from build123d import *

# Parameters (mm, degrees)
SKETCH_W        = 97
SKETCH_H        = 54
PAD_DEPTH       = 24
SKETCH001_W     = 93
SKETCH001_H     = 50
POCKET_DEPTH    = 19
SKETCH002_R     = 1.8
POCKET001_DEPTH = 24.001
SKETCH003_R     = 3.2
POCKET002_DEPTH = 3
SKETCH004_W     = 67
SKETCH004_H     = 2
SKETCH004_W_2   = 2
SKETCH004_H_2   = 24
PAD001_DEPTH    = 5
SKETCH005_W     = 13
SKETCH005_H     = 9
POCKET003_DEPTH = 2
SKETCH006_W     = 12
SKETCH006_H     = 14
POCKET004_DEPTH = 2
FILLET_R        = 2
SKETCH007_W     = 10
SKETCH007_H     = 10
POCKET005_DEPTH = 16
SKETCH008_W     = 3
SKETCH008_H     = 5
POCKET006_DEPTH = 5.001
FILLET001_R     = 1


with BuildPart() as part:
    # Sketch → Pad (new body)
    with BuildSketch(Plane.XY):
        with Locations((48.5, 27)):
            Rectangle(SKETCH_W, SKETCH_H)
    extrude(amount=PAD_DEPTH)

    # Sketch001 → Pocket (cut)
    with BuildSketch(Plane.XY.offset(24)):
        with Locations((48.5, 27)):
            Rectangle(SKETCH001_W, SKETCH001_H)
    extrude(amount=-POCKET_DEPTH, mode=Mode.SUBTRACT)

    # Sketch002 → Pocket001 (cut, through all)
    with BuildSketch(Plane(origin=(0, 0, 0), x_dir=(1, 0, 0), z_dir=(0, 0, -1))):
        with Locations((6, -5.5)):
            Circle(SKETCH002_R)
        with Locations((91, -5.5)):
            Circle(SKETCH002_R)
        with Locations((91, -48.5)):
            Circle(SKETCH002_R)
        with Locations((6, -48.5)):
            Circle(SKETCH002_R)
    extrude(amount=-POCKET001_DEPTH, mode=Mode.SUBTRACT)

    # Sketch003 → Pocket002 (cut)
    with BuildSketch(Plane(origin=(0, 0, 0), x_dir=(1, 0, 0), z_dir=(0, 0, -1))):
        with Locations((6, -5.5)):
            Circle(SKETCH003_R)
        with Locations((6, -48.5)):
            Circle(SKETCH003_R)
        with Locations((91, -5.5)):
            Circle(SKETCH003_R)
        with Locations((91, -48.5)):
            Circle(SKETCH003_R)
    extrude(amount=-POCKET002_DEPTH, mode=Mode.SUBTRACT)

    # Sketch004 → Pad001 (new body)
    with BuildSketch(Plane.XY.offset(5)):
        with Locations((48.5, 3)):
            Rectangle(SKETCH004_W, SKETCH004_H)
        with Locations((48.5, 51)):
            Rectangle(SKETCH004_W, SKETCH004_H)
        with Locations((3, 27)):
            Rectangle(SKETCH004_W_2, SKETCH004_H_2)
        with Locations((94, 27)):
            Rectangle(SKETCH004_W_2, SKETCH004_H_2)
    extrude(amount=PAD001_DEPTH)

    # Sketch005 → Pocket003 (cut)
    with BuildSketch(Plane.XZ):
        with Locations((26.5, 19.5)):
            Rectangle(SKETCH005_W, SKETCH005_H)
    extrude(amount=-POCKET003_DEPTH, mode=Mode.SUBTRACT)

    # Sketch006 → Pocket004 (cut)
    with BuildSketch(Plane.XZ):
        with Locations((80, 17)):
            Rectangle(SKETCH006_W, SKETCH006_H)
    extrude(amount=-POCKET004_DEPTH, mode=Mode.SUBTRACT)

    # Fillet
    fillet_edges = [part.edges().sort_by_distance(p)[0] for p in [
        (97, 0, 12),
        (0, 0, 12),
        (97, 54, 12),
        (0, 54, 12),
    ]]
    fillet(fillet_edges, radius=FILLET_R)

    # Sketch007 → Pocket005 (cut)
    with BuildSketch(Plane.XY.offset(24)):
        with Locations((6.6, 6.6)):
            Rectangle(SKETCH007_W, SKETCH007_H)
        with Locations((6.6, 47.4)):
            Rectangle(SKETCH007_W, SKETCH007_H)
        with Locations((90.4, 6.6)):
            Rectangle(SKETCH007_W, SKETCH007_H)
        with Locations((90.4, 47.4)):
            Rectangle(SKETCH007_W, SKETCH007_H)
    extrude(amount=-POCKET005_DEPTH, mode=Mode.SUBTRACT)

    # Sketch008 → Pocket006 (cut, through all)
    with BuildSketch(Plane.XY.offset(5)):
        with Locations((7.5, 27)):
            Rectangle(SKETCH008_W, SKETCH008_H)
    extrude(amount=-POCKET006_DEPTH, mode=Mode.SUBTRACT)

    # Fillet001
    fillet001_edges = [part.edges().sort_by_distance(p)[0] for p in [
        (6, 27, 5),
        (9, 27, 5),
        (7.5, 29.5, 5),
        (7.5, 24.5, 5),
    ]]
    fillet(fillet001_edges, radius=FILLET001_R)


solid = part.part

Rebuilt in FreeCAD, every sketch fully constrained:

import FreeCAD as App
import Part
import Sketcher
from FreeCAD import Vector


def edges_at(feature, points):
    """Names of the edges that pass closest to the given points."""
    edges = feature.Shape.Edges
    near = lambda p: min(range(len(edges)), key=lambda i: edges[i].distToShape(Part.Vertex(*p))[0])
    return sorted({f"Edge{near(p) + 1}" for p in points})

doc = App.newDocument("Part")
params = doc.addObject("Spreadsheet::Sheet", "Params")
for row, (alias, value) in enumerate([
    ("sketch1_width", "97 mm"),
    ("sketch1_height", "54 mm"),
    ("pad1_length", "24 mm"),
    ("sketch2_width", "93 mm"),
    ("sketch2_height", "50 mm"),
    ("pocket1_length", "19 mm"),
    ("sketch3_diameter", "3.6 mm"),
    ("sketch4_diameter", "6.4 mm"),
    ("pocket3_length", "3 mm"),
    ("sketch5_width", "67 mm"),
    ("sketch5_width2", "2 mm"),
    ("sketch5_height", "24 mm"),
    ("pad2_length", "5 mm"),
    ("sketch6_width", "13 mm"),
    ("sketch6_height", "9 mm"),
    ("pocket4_length", "2 mm"),
    ("sketch7_width", "12 mm"),
    ("sketch7_height", "14 mm"),
    ("pocket5_length", "2 mm"),
    ("fillet_radius", "2 mm"),
    ("sketch8_width", "10 mm"),
    ("pocket6_length", "16 mm"),
    ("sketch9_width", "3 mm"),
    ("sketch9_height", "5 mm"),
    ("fillet2_radius", "1 mm"),
], start=1):
    params.set(f"A{row}", alias)
    params.set(f"B{row}", "=" + value)
    params.setAlias(f"B{row}", alias)

body = doc.addObject("PartDesign::Body", "Body")

sketch1 = body.newObject("Sketcher::SketchObject", "Sketch")
sketch1.AttachmentSupport = (doc.getObject("XY_Plane"), [""])
sketch1.MapMode = "FlatFace"
sketch1.addGeometry(Part.LineSegment(Vector(0, 54, 0), Vector(0, 0, 0)), False)
sketch1.addGeometry(Part.LineSegment(Vector(0, 0, 0), Vector(97, 0, 0)), False)
sketch1.addGeometry(Part.LineSegment(Vector(97, 0, 0), Vector(97, 54, 0)), False)
sketch1.addGeometry(Part.LineSegment(Vector(97, 54, 0), Vector(0, 54, 0)), False)
sketch1.addConstraint(Sketcher.Constraint("Coincident", 0, 2, 1, 1))
sketch1.addConstraint(Sketcher.Constraint("Coincident", 1, 2, 2, 1))
sketch1.addConstraint(Sketcher.Constraint("Coincident", 2, 2, 3, 1))
sketch1.addConstraint(Sketcher.Constraint("Coincident", 3, 2, 0, 1))
sketch1.addConstraint(Sketcher.Constraint("Vertical", 0))
sketch1.addConstraint(Sketcher.Constraint("Horizontal", 1))
sketch1.addConstraint(Sketcher.Constraint("Vertical", 2))
sketch1.addConstraint(Sketcher.Constraint("Horizontal", 3))
sketch1.addConstraint(Sketcher.Constraint("Coincident", 0, 2, -1, 1))
sketch1.addConstraint(Sketcher.Constraint("DistanceX", 1, 1, 1, 2, 97.0))
sketch1.addConstraint(Sketcher.Constraint("DistanceY", 0, 2, 0, 1, 54.0))
sketch1.setExpression("Constraints[9]", "Params.sketch1_width")
sketch1.setExpression("Constraints[10]", "Params.sketch1_height")
pad1 = body.newObject("PartDesign::Pad", "Pad")
pad1.Profile = sketch1
pad1.setExpression("Length", "Params.pad1_length")

sketch2 = body.newObject("Sketcher::SketchObject", "Sketch001")
sketch2.AttachmentSupport = (doc.getObject("XY_Plane"), [""])
sketch2.MapMode = "FlatFace"
sketch2.AttachmentOffset = App.Placement(Vector(0, 0, 24), App.Rotation())
sketch2.addGeometry(Part.LineSegment(Vector(2, 52, 0), Vector(2, 2, 0)), False)
sketch2.addGeometry(Part.LineSegment(Vector(2, 2, 0), Vector(95, 2, 0)), False)
sketch2.addGeometry(Part.LineSegment(Vector(95, 2, 0), Vector(95, 52, 0)), False)
sketch2.addGeometry(Part.LineSegment(Vector(95, 52, 0), Vector(2, 52, 0)), False)
sketch2.addConstraint(Sketcher.Constraint("Coincident", 0, 2, 1, 1))
sketch2.addConstraint(Sketcher.Constraint("Coincident", 1, 2, 2, 1))
sketch2.addConstraint(Sketcher.Constraint("Coincident", 2, 2, 3, 1))
sketch2.addConstraint(Sketcher.Constraint("Coincident", 3, 2, 0, 1))
sketch2.addConstraint(Sketcher.Constraint("Vertical", 0))
sketch2.addConstraint(Sketcher.Constraint("Horizontal", 1))
sketch2.addConstraint(Sketcher.Constraint("Vertical", 2))
sketch2.addConstraint(Sketcher.Constraint("Horizontal", 3))
sketch2.addConstraint(Sketcher.Constraint("DistanceX", 1, 1, 1, 2, 93.0))
sketch2.addConstraint(Sketcher.Constraint("DistanceY", 0, 2, 0, 1, 50.0))
sketch2.addConstraint(Sketcher.Constraint("DistanceX", -1, 1, 0, 2, 2.0))
sketch2.addConstraint(Sketcher.Constraint("DistanceY", -1, 1, 0, 2, 2.0))
sketch2.setExpression("Constraints[8]", "Params.sketch2_width")
sketch2.setExpression("Constraints[9]", "Params.sketch2_height")
pocket1 = body.newObject("PartDesign::Pocket", "Pocket")
pocket1.Profile = sketch2
pocket1.setExpression("Length", "Params.pocket1_length")

sketch3 = body.newObject("Sketcher::SketchObject", "Sketch002")
sketch3.AttachmentSupport = (doc.getObject("XY_Plane"), [""])
sketch3.MapMode = "FlatFace"
sketch3.addGeometry(Part.Circle(Vector(6, 5.5, 0), Vector(0, 0, 1), 1.8), False)
sketch3.addGeometry(Part.Circle(Vector(91, 5.5, 0), Vector(0, 0, 1), 1.8), False)
sketch3.addGeometry(Part.Circle(Vector(91, 48.5, 0), Vector(0, 0, 1), 1.8), False)
sketch3.addGeometry(Part.Circle(Vector(6, 48.5, 0), Vector(0, 0, 1), 1.8), False)
sketch3.addConstraint(Sketcher.Constraint("Equal", 0, 1))
sketch3.addConstraint(Sketcher.Constraint("Equal", 1, 2))
sketch3.addConstraint(Sketcher.Constraint("Equal", 2, 3))
sketch3.addConstraint(Sketcher.Constraint("Horizontal", 0, 3, 1, 3))
sketch3.addConstraint(Sketcher.Constraint("Horizontal", 2, 3, 3, 3))
sketch3.addConstraint(Sketcher.Constraint("Vertical", 1, 3, 2, 3))
sketch3.addConstraint(Sketcher.Constraint("Vertical", 0, 3, 3, 3))
sketch3.addConstraint(Sketcher.Constraint("Diameter", 0, 3.6))
sketch3.addConstraint(Sketcher.Constraint("DistanceX", -1, 1, 0, 3, 6.0))
sketch3.addConstraint(Sketcher.Constraint("DistanceX", -1, 1, 1, 3, 91.0))
sketch3.addConstraint(Sketcher.Constraint("DistanceY", 1, 3, 2, 3, 43.0))
sketch3.addConstraint(Sketcher.Constraint("DistanceY", -1, 1, 0, 3, 5.5))
sketch3.setExpression("Constraints[7]", "Params.sketch3_diameter")
pocket2 = body.newObject("PartDesign::Pocket", "Pocket001")
pocket2.Profile = sketch3
pocket2.Type = "ThroughAll"
pocket2.Reversed = True

sketch4 = body.newObject("Sketcher::SketchObject", "Sketch003")
sketch4.AttachmentSupport = (doc.getObject("XY_Plane"), [""])
sketch4.MapMode = "FlatFace"
sketch4.addGeometry(Part.Circle(Vector(6, 5.5, 0), Vector(0, 0, 1), 3.2), False)
sketch4.addGeometry(Part.Circle(Vector(6, 48.5, 0), Vector(0, 0, 1), 3.2), False)
sketch4.addGeometry(Part.Circle(Vector(91, 5.5, 0), Vector(0, 0, 1), 3.2), False)
sketch4.addGeometry(Part.Circle(Vector(91, 48.5, 0), Vector(0, 0, 1), 3.2), False)
sketch4.addConstraint(Sketcher.Constraint("Equal", 0, 1))
sketch4.addConstraint(Sketcher.Constraint("Equal", 1, 2))
sketch4.addConstraint(Sketcher.Constraint("Equal", 2, 3))
sketch4.addConstraint(Sketcher.Constraint("Horizontal", 0, 3, 2, 3))
sketch4.addConstraint(Sketcher.Constraint("Horizontal", 1, 3, 3, 3))
sketch4.addConstraint(Sketcher.Constraint("Vertical", 0, 3, 1, 3))
sketch4.addConstraint(Sketcher.Constraint("Vertical", 2, 3, 3, 3))
sketch4.addConstraint(Sketcher.Constraint("Diameter", 0, 6.4))
sketch4.addConstraint(Sketcher.Constraint("DistanceX", -1, 1, 0, 3, 6.0))
sketch4.addConstraint(Sketcher.Constraint("DistanceX", -1, 1, 2, 3, 91.0))
sketch4.addConstraint(Sketcher.Constraint("DistanceY", 0, 3, 1, 3, 43.0))
sketch4.addConstraint(Sketcher.Constraint("DistanceY", -1, 1, 0, 3, 5.5))
sketch4.setExpression("Constraints[7]", "Params.sketch4_diameter")
pocket3 = body.newObject("PartDesign::Pocket", "Pocket002")
pocket3.Profile = sketch4
pocket3.setExpression("Length", "Params.pocket3_length")
pocket3.Reversed = True

sketch5 = body.newObject("Sketcher::SketchObject", "Sketch004")
sketch5.AttachmentSupport = (doc.getObject("XY_Plane"), [""])
sketch5.MapMode = "FlatFace"
sketch5.AttachmentOffset = App.Placement(Vector(0, 0, 5), App.Rotation())
sketch5.addGeometry(Part.LineSegment(Vector(15, 4, 0), Vector(15, 2, 0)), False)
sketch5.addGeometry(Part.LineSegment(Vector(15, 2, 0), Vector(82, 2, 0)), False)
sketch5.addGeometry(Part.LineSegment(Vector(82, 2, 0), Vector(82, 4, 0)), False)
sketch5.addGeometry(Part.LineSegment(Vector(82, 4, 0), Vector(15, 4, 0)), False)
sketch5.addGeometry(Part.LineSegment(Vector(15, 52, 0), Vector(15, 50, 0)), False)
sketch5.addGeometry(Part.LineSegment(Vector(15, 50, 0), Vector(82, 50, 0)), False)
sketch5.addGeometry(Part.LineSegment(Vector(82, 50, 0), Vector(82, 52, 0)), False)
sketch5.addGeometry(Part.LineSegment(Vector(82, 52, 0), Vector(15, 52, 0)), False)
sketch5.addGeometry(Part.LineSegment(Vector(2, 39, 0), Vector(2, 15, 0)), False)
sketch5.addGeometry(Part.LineSegment(Vector(2, 15, 0), Vector(4, 15, 0)), False)
sketch5.addGeometry(Part.LineSegment(Vector(4, 15, 0), Vector(4, 39, 0)), False)
sketch5.addGeometry(Part.LineSegment(Vector(4, 39, 0), Vector(2, 39, 0)), False)
sketch5.addGeometry(Part.LineSegment(Vector(93, 39, 0), Vector(93, 15, 0)), False)
sketch5.addGeometry(Part.LineSegment(Vector(93, 15, 0), Vector(95, 15, 0)), False)
sketch5.addGeometry(Part.LineSegment(Vector(95, 15, 0), Vector(95, 39, 0)), False)
sketch5.addGeometry(Part.LineSegment(Vector(95, 39, 0), Vector(93, 39, 0)), False)
sketch5.addConstraint(Sketcher.Constraint("Coincident", 0, 2, 1, 1))
sketch5.addConstraint(Sketcher.Constraint("Coincident", 1, 2, 2, 1))
sketch5.addConstraint(Sketcher.Constraint("Coincident", 2, 2, 3, 1))
sketch5.addConstraint(Sketcher.Constraint("Coincident", 3, 2, 0, 1))
sketch5.addConstraint(Sketcher.Constraint("Coincident", 4, 2, 5, 1))
sketch5.addConstraint(Sketcher.Constraint("Coincident", 5, 2, 6, 1))
sketch5.addConstraint(Sketcher.Constraint("Coincident", 6, 2, 7, 1))
sketch5.addConstraint(Sketcher.Constraint("Coincident", 7, 2, 4, 1))
sketch5.addConstraint(Sketcher.Constraint("Coincident", 8, 2, 9, 1))
sketch5.addConstraint(Sketcher.Constraint("Coincident", 9, 2, 10, 1))
sketch5.addConstraint(Sketcher.Constraint("Coincident", 10, 2, 11, 1))
sketch5.addConstraint(Sketcher.Constraint("Coincident", 11, 2, 8, 1))
sketch5.addConstraint(Sketcher.Constraint("Coincident", 12, 2, 13, 1))
sketch5.addConstraint(Sketcher.Constraint("Coincident", 13, 2, 14, 1))
sketch5.addConstraint(Sketcher.Constraint("Coincident", 14, 2, 15, 1))
sketch5.addConstraint(Sketcher.Constraint("Coincident", 15, 2, 12, 1))
sketch5.addConstraint(Sketcher.Constraint("Vertical", 0))
sketch5.addConstraint(Sketcher.Constraint("Horizontal", 1))
sketch5.addConstraint(Sketcher.Constraint("Vertical", 2))
sketch5.addConstraint(Sketcher.Constraint("Horizontal", 3))
sketch5.addConstraint(Sketcher.Constraint("Vertical", 4))
sketch5.addConstraint(Sketcher.Constraint("Horizontal", 5))
sketch5.addConstraint(Sketcher.Constraint("Vertical", 6))
sketch5.addConstraint(Sketcher.Constraint("Horizontal", 7))
sketch5.addConstraint(Sketcher.Constraint("Vertical", 8))
sketch5.addConstraint(Sketcher.Constraint("Horizontal", 9))
sketch5.addConstraint(Sketcher.Constraint("Vertical", 10))
sketch5.addConstraint(Sketcher.Constraint("Horizontal", 11))
sketch5.addConstraint(Sketcher.Constraint("Vertical", 12))
sketch5.addConstraint(Sketcher.Constraint("Horizontal", 13))
sketch5.addConstraint(Sketcher.Constraint("Vertical", 14))
sketch5.addConstraint(Sketcher.Constraint("Horizontal", 15))
sketch5.addConstraint(Sketcher.Constraint("Horizontal", 9, 2, 12, 2))
sketch5.addConstraint(Sketcher.Constraint("Horizontal", 11, 2, 14, 2))
sketch5.addConstraint(Sketcher.Constraint("Vertical", 3, 2, 4, 2))
sketch5.addConstraint(Sketcher.Constraint("Vertical", 2, 2, 5, 2))
sketch5.addConstraint(Sketcher.Constraint("Equal", 11, 13))
sketch5.addConstraint(Sketcher.Constraint("Equal", 15, 0))
sketch5.addConstraint(Sketcher.Constraint("Equal", 2, 4))
sketch5.addConstraint(Sketcher.Constraint("DistanceX", 1, 1, 1, 2, 67.0))
sketch5.addConstraint(Sketcher.Constraint("DistanceX", 9, 1, 9, 2, 2.0))
sketch5.addConstraint(Sketcher.Constraint("DistanceY", 8, 2, 8, 1, 24.0))
sketch5.addConstraint(Sketcher.Constraint("DistanceX", -1, 1, 0, 2, 15.0))
sketch5.addConstraint(Sketcher.Constraint("DistanceY", -1, 1, 0, 2, 2.0))
sketch5.addConstraint(Sketcher.Constraint("DistanceY", -1, 1, 4, 2, 50.0))
sketch5.addConstraint(Sketcher.Constraint("DistanceX", -1, 1, 8, 2, 2.0))
sketch5.addConstraint(Sketcher.Constraint("DistanceY", -1, 1, 8, 2, 15.0))
sketch5.addConstraint(Sketcher.Constraint("DistanceX", -1, 1, 12, 2, 93.0))
sketch5.setExpression("Constraints[39]", "Params.sketch5_width")
sketch5.setExpression("Constraints[40]", "Params.sketch5_width2")
sketch5.setExpression("Constraints[41]", "Params.sketch5_height")
pad2 = body.newObject("PartDesign::Pad", "Pad001")
pad2.Profile = sketch5
pad2.setExpression("Length", "Params.pad2_length")

sketch6 = body.newObject("Sketcher::SketchObject", "Sketch005")
sketch6.AttachmentSupport = (doc.getObject("XZ_Plane"), [""])
sketch6.MapMode = "FlatFace"
sketch6.addGeometry(Part.LineSegment(Vector(20, 24, 0), Vector(20, 15, 0)), False)
sketch6.addGeometry(Part.LineSegment(Vector(20, 15, 0), Vector(33, 15, 0)), False)
sketch6.addGeometry(Part.LineSegment(Vector(33, 15, 0), Vector(33, 24, 0)), False)
sketch6.addGeometry(Part.LineSegment(Vector(33, 24, 0), Vector(20, 24, 0)), False)
sketch6.addConstraint(Sketcher.Constraint("Coincident", 0, 2, 1, 1))
sketch6.addConstraint(Sketcher.Constraint("Coincident", 1, 2, 2, 1))
sketch6.addConstraint(Sketcher.Constraint("Coincident", 2, 2, 3, 1))
sketch6.addConstraint(Sketcher.Constraint("Coincident", 3, 2, 0, 1))
sketch6.addConstraint(Sketcher.Constraint("Vertical", 0))
sketch6.addConstraint(Sketcher.Constraint("Horizontal", 1))
sketch6.addConstraint(Sketcher.Constraint("Vertical", 2))
sketch6.addConstraint(Sketcher.Constraint("Horizontal", 3))
sketch6.addConstraint(Sketcher.Constraint("DistanceX", 1, 1, 1, 2, 13.0))
sketch6.addConstraint(Sketcher.Constraint("DistanceY", 0, 2, 0, 1, 9.0))
sketch6.addConstraint(Sketcher.Constraint("DistanceX", -1, 1, 0, 2, 20.0))
sketch6.addConstraint(Sketcher.Constraint("DistanceY", -1, 1, 0, 2, 15.0))
sketch6.setExpression("Constraints[8]", "Params.sketch6_width")
sketch6.setExpression("Constraints[9]", "Params.sketch6_height")
pocket4 = body.newObject("PartDesign::Pocket", "Pocket003")
pocket4.Profile = sketch6
pocket4.setExpression("Length", "Params.pocket4_length")

sketch7 = body.newObject("Sketcher::SketchObject", "Sketch006")
sketch7.AttachmentSupport = (doc.getObject("XZ_Plane"), [""])
sketch7.MapMode = "FlatFace"
sketch7.addGeometry(Part.LineSegment(Vector(74, 24, 0), Vector(74, 10, 0)), False)
sketch7.addGeometry(Part.LineSegment(Vector(74, 10, 0), Vector(86, 10, 0)), False)
sketch7.addGeometry(Part.LineSegment(Vector(86, 10, 0), Vector(86, 24, 0)), False)
sketch7.addGeometry(Part.LineSegment(Vector(86, 24, 0), Vector(74, 24, 0)), False)
sketch7.addConstraint(Sketcher.Constraint("Coincident", 0, 2, 1, 1))
sketch7.addConstraint(Sketcher.Constraint("Coincident", 1, 2, 2, 1))
sketch7.addConstraint(Sketcher.Constraint("Coincident", 2, 2, 3, 1))
sketch7.addConstraint(Sketcher.Constraint("Coincident", 3, 2, 0, 1))
sketch7.addConstraint(Sketcher.Constraint("Vertical", 0))
sketch7.addConstraint(Sketcher.Constraint("Horizontal", 1))
sketch7.addConstraint(Sketcher.Constraint("Vertical", 2))
sketch7.addConstraint(Sketcher.Constraint("Horizontal", 3))
sketch7.addConstraint(Sketcher.Constraint("DistanceX", 1, 1, 1, 2, 12.0))
sketch7.addConstraint(Sketcher.Constraint("DistanceY", 0, 2, 0, 1, 14.0))
sketch7.addConstraint(Sketcher.Constraint("DistanceX", -1, 1, 0, 2, 74.0))
sketch7.addConstraint(Sketcher.Constraint("DistanceY", -1, 1, 0, 2, 10.0))
sketch7.setExpression("Constraints[8]", "Params.sketch7_width")
sketch7.setExpression("Constraints[9]", "Params.sketch7_height")
pocket5 = body.newObject("PartDesign::Pocket", "Pocket004")
pocket5.Profile = sketch7
pocket5.setExpression("Length", "Params.pocket5_length")
doc.recompute()

fillet = body.newObject("PartDesign::Fillet", "Fillet")
fillet.Base = (pocket5, edges_at(pocket5, [
    (97, 0, 12),
    (0, 0, 12),
    (97, 54, 12),
    (0, 54, 12),
]))
fillet.setExpression("Radius", "Params.fillet_radius")

sketch8 = body.newObject("Sketcher::SketchObject", "Sketch007")
sketch8.AttachmentSupport = (doc.getObject("XY_Plane"), [""])
sketch8.MapMode = "FlatFace"
sketch8.AttachmentOffset = App.Placement(Vector(0, 0, 24), App.Rotation())
sketch8.addGeometry(Part.LineSegment(Vector(2, 12, 0), Vector(2, 2, 0)), False)
sketch8.addGeometry(Part.LineSegment(Vector(2, 2, 0), Vector(12, 2, 0)), False)
sketch8.addGeometry(Part.LineSegment(Vector(12, 2, 0), Vector(12, 12, 0)), False)
sketch8.addGeometry(Part.LineSegment(Vector(12, 12, 0), Vector(2, 12, 0)), False)
sketch8.addGeometry(Part.LineSegment(Vector(2, 52, 0), Vector(2, 42, 0)), False)
sketch8.addGeometry(Part.LineSegment(Vector(2, 42, 0), Vector(12, 42, 0)), False)
sketch8.addGeometry(Part.LineSegment(Vector(12, 42, 0), Vector(12, 52, 0)), False)
sketch8.addGeometry(Part.LineSegment(Vector(12, 52, 0), Vector(2, 52, 0)), False)
sketch8.addGeometry(Part.LineSegment(Vector(85, 12, 0), Vector(85, 2, 0)), False)
sketch8.addGeometry(Part.LineSegment(Vector(85, 2, 0), Vector(95, 2, 0)), False)
sketch8.addGeometry(Part.LineSegment(Vector(95, 2, 0), Vector(95, 12, 0)), False)
sketch8.addGeometry(Part.LineSegment(Vector(95, 12, 0), Vector(85, 12, 0)), False)
sketch8.addGeometry(Part.LineSegment(Vector(85, 52, 0), Vector(85, 42, 0)), False)
sketch8.addGeometry(Part.LineSegment(Vector(85, 42, 0), Vector(95, 42, 0)), False)
sketch8.addGeometry(Part.LineSegment(Vector(95, 42, 0), Vector(95, 52, 0)), False)
sketch8.addGeometry(Part.LineSegment(Vector(95, 52, 0), Vector(85, 52, 0)), False)
sketch8.addConstraint(Sketcher.Constraint("Coincident", 0, 2, 1, 1))
sketch8.addConstraint(Sketcher.Constraint("Coincident", 1, 2, 2, 1))
sketch8.addConstraint(Sketcher.Constraint("Coincident", 2, 2, 3, 1))
sketch8.addConstraint(Sketcher.Constraint("Coincident", 3, 2, 0, 1))
sketch8.addConstraint(Sketcher.Constraint("Coincident", 4, 2, 5, 1))
sketch8.addConstraint(Sketcher.Constraint("Coincident", 5, 2, 6, 1))
sketch8.addConstraint(Sketcher.Constraint("Coincident", 6, 2, 7, 1))
sketch8.addConstraint(Sketcher.Constraint("Coincident", 7, 2, 4, 1))
sketch8.addConstraint(Sketcher.Constraint("Coincident", 8, 2, 9, 1))
sketch8.addConstraint(Sketcher.Constraint("Coincident", 9, 2, 10, 1))
sketch8.addConstraint(Sketcher.Constraint("Coincident", 10, 2, 11, 1))
sketch8.addConstraint(Sketcher.Constraint("Coincident", 11, 2, 8, 1))
sketch8.addConstraint(Sketcher.Constraint("Coincident", 12, 2, 13, 1))
sketch8.addConstraint(Sketcher.Constraint("Coincident", 13, 2, 14, 1))
sketch8.addConstraint(Sketcher.Constraint("Coincident", 14, 2, 15, 1))
sketch8.addConstraint(Sketcher.Constraint("Coincident", 15, 2, 12, 1))
sketch8.addConstraint(Sketcher.Constraint("Vertical", 0))
sketch8.addConstraint(Sketcher.Constraint("Horizontal", 1))
sketch8.addConstraint(Sketcher.Constraint("Vertical", 2))
sketch8.addConstraint(Sketcher.Constraint("Horizontal", 3))
sketch8.addConstraint(Sketcher.Constraint("Vertical", 4))
sketch8.addConstraint(Sketcher.Constraint("Horizontal", 5))
sketch8.addConstraint(Sketcher.Constraint("Vertical", 6))
sketch8.addConstraint(Sketcher.Constraint("Horizontal", 7))
sketch8.addConstraint(Sketcher.Constraint("Vertical", 8))
sketch8.addConstraint(Sketcher.Constraint("Horizontal", 9))
sketch8.addConstraint(Sketcher.Constraint("Vertical", 10))
sketch8.addConstraint(Sketcher.Constraint("Horizontal", 11))
sketch8.addConstraint(Sketcher.Constraint("Vertical", 12))
sketch8.addConstraint(Sketcher.Constraint("Horizontal", 13))
sketch8.addConstraint(Sketcher.Constraint("Vertical", 14))
sketch8.addConstraint(Sketcher.Constraint("Horizontal", 15))
sketch8.addConstraint(Sketcher.Constraint("Horizontal", 1, 2, 8, 2))
sketch8.addConstraint(Sketcher.Constraint("Horizontal", 3, 2, 10, 2))
sketch8.addConstraint(Sketcher.Constraint("Horizontal", 5, 2, 12, 2))
sketch8.addConstraint(Sketcher.Constraint("Horizontal", 7, 2, 14, 2))
sketch8.addConstraint(Sketcher.Constraint("Vertical", 3, 2, 4, 2))
sketch8.addConstraint(Sketcher.Constraint("Vertical", 2, 2, 5, 2))
sketch8.addConstraint(Sketcher.Constraint("Vertical", 11, 2, 12, 2))
sketch8.addConstraint(Sketcher.Constraint("Vertical", 10, 2, 13, 2))
sketch8.addConstraint(Sketcher.Constraint("Equal", 7, 9))
sketch8.addConstraint(Sketcher.Constraint("Equal", 15, 0))
sketch8.addConstraint(Sketcher.Constraint("Equal", 2, 4))
sketch8.addConstraint(Sketcher.Constraint("DistanceX", 1, 1, 1, 2, 10.0))
sketch8.addConstraint(Sketcher.Constraint("DistanceX", -1, 1, 0, 2, 1.6))
sketch8.addConstraint(Sketcher.Constraint("DistanceY", -1, 1, 0, 2, 1.6))
sketch8.addConstraint(Sketcher.Constraint("DistanceY", -1, 1, 4, 2, 42.4))
sketch8.addConstraint(Sketcher.Constraint("DistanceX", -1, 1, 8, 2, 85.4))
sketch8.setExpression("Constraints[43]", "Params.sketch8_width")
pocket6 = body.newObject("PartDesign::Pocket", "Pocket005")
pocket6.Profile = sketch8
pocket6.setExpression("Length", "Params.pocket6_length")

sketch9 = body.newObject("Sketcher::SketchObject", "Sketch008")
sketch9.AttachmentSupport = (doc.getObject("XY_Plane"), [""])
sketch9.MapMode = "FlatFace"
sketch9.AttachmentOffset = App.Placement(Vector(0, 0, 5), App.Rotation())
sketch9.addGeometry(Part.LineSegment(Vector(6, 29.5, 0), Vector(6, 24.5, 0)), False)
sketch9.addGeometry(Part.LineSegment(Vector(6, 24.5, 0), Vector(9, 24.5, 0)), False)
sketch9.addGeometry(Part.LineSegment(Vector(9, 24.5, 0), Vector(9, 29.5, 0)), False)
sketch9.addGeometry(Part.LineSegment(Vector(9, 29.5, 0), Vector(6, 29.5, 0)), False)
sketch9.addConstraint(Sketcher.Constraint("Coincident", 0, 2, 1, 1))
sketch9.addConstraint(Sketcher.Constraint("Coincident", 1, 2, 2, 1))
sketch9.addConstraint(Sketcher.Constraint("Coincident", 2, 2, 3, 1))
sketch9.addConstraint(Sketcher.Constraint("Coincident", 3, 2, 0, 1))
sketch9.addConstraint(Sketcher.Constraint("Vertical", 0))
sketch9.addConstraint(Sketcher.Constraint("Horizontal", 1))
sketch9.addConstraint(Sketcher.Constraint("Vertical", 2))
sketch9.addConstraint(Sketcher.Constraint("Horizontal", 3))
sketch9.addConstraint(Sketcher.Constraint("DistanceX", 1, 1, 1, 2, 3.0))
sketch9.addConstraint(Sketcher.Constraint("DistanceY", 0, 2, 0, 1, 5.0))
sketch9.addConstraint(Sketcher.Constraint("DistanceX", -1, 1, 0, 2, 6.0))
sketch9.addConstraint(Sketcher.Constraint("DistanceY", -1, 1, 0, 2, 24.5))
sketch9.setExpression("Constraints[8]", "Params.sketch9_width")
sketch9.setExpression("Constraints[9]", "Params.sketch9_height")
pocket7 = body.newObject("PartDesign::Pocket", "Pocket006")
pocket7.Profile = sketch9
pocket7.Type = "ThroughAll"
doc.recompute()

fillet2 = body.newObject("PartDesign::Fillet", "Fillet001")
fillet2.Base = (pocket7, edges_at(pocket7, [
    (6, 27, 5),
    (9, 27, 5),
    (7.5, 29.5, 5),
    (7.5, 24.5, 5),
]))
fillet2.setExpression("Radius", "Params.fillet2_radius")

doc.recompute()
